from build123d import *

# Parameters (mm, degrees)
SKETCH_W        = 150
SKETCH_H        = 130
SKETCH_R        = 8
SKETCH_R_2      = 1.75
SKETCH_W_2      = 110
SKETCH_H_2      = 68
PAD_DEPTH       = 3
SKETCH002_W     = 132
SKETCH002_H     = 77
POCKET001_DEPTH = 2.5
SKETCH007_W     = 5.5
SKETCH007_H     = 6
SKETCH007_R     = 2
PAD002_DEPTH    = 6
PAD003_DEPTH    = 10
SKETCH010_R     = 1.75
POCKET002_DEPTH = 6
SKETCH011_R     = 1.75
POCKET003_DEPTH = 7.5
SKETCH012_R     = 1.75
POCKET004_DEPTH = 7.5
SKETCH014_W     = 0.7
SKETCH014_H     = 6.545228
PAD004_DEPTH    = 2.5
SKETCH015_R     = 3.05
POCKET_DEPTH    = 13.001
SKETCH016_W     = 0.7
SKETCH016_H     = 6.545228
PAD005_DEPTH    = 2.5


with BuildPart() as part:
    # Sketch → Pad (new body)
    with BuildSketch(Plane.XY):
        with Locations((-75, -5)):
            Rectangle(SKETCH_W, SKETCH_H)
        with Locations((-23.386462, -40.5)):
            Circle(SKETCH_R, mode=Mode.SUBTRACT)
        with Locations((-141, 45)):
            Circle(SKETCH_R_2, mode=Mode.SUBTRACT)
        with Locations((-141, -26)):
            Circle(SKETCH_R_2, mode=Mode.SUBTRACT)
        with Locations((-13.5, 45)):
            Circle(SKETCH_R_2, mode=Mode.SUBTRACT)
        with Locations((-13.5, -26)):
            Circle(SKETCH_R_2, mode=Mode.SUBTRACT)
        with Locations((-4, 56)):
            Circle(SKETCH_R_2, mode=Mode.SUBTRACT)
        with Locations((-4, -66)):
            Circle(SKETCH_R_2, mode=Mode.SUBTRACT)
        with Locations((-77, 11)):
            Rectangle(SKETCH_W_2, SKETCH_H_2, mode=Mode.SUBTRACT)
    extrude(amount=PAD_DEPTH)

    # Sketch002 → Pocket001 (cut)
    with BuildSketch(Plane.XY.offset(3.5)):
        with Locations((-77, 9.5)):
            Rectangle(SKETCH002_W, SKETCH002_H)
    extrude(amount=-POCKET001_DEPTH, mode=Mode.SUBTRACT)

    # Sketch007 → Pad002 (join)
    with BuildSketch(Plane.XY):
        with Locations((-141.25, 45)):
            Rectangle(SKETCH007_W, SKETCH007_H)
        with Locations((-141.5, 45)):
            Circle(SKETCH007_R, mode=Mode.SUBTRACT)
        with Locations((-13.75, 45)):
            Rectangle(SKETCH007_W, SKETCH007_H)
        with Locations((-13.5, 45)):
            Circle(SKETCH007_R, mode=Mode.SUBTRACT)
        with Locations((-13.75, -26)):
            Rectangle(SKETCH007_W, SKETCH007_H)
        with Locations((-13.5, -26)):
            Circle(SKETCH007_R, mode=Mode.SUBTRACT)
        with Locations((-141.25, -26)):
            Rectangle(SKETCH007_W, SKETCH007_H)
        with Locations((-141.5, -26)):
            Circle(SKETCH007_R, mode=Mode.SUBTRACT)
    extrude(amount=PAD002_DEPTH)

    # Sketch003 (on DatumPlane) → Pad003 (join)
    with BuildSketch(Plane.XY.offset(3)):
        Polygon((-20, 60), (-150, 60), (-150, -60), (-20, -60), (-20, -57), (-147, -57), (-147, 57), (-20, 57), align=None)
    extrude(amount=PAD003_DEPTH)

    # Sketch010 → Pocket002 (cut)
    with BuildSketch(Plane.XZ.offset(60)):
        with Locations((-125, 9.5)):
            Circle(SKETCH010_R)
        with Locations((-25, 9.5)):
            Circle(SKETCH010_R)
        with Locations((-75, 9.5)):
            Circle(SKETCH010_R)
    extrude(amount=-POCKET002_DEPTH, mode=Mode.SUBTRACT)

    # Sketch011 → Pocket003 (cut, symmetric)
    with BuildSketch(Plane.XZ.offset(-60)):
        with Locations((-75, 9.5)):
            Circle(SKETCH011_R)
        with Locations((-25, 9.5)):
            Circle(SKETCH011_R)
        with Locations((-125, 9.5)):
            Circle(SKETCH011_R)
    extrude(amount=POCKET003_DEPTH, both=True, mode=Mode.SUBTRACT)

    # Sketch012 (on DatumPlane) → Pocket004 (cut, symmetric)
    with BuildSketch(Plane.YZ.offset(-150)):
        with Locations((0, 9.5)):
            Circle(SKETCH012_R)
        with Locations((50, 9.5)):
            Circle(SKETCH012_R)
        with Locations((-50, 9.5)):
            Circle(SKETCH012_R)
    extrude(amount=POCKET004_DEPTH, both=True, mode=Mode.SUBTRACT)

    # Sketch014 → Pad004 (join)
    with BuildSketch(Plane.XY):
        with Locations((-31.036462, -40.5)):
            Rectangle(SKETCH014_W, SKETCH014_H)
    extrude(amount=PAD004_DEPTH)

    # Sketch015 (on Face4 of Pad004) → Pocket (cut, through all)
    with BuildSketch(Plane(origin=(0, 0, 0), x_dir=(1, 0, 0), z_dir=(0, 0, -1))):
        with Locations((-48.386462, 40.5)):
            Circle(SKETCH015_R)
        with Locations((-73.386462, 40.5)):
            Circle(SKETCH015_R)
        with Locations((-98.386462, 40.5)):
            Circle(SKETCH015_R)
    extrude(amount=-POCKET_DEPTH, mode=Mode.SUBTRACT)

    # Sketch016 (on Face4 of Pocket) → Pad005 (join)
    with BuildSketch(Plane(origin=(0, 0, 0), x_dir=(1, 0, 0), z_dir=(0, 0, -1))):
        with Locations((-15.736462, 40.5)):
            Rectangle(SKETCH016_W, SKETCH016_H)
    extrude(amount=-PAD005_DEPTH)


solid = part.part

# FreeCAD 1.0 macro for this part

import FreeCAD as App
import Part
import Sketcher
from FreeCAD import Vector
Q = App.Units.Quantity

doc = App.newDocument("Part")
body = doc.addObject("PartDesign::Body", "Body")

# Sketch on XY plane
sketch1 = body.newObject("Sketcher::SketchObject", "Sketch")
sketch1.AttachmentSupport = (doc.getObject("XY_Plane"), [""])
sketch1.MapMode = "FlatFace"
sketch1.addGeometry([
    Part.LineSegment(Vector(-150, 60, 0), Vector(-150, -70, 0)),  # 0
    Part.LineSegment(Vector(-150, -70, 0), Vector(0, -70, 0)),  # 1
    Part.LineSegment(Vector(0, -70, 0), Vector(0, 60, 0)),  # 2
    Part.LineSegment(Vector(0, 60, 0), Vector(-150, 60, 0)),  # 3
    Part.Circle(Vector(-141, -26, 0), Vector(0, 0, 1), 1.8),  # 4
    Part.Circle(Vector(-4, -66, 0), Vector(0, 0, 1), 1.8),  # 5
    Part.Circle(Vector(-23.4, -40.5, 0), Vector(0, 0, 1), 8),  # 6
    Part.Circle(Vector(-13.5, -26, 0), Vector(0, 0, 1), 1.8),  # 7
    Part.LineSegment(Vector(-22, -23, 0), Vector(-132, -23, 0)),  # 8
    Part.LineSegment(Vector(-132, -23, 0), Vector(-132, 45, 0)),  # 9
    Part.LineSegment(Vector(-132, 45, 0), Vector(-22, 45, 0)),  # 10
    Part.LineSegment(Vector(-22, 45, 0), Vector(-22, -23, 0)),  # 11
    Part.Circle(Vector(-141, 45, 0), Vector(0, 0, 1), 1.8),  # 12
    Part.Circle(Vector(-13.5, 45, 0), Vector(0, 0, 1), 1.8),  # 13
    Part.Circle(Vector(-4, 56, 0), Vector(0, 0, 1), 1.8),  # 14
], False)
sketch1.addConstraint([
    Sketcher.Constraint("Coincident", 0, 2, 1, 1),
    Sketcher.Constraint("Coincident", 1, 2, 2, 1),
    Sketcher.Constraint("Coincident", 2, 2, 3, 1),
    Sketcher.Constraint("Coincident", 3, 2, 0, 1),
    Sketcher.Constraint("Coincident", 8, 2, 9, 1),
    Sketcher.Constraint("Coincident", 9, 2, 10, 1),
    Sketcher.Constraint("Coincident", 10, 2, 11, 1),
    Sketcher.Constraint("Coincident", 11, 2, 8, 1),
    Sketcher.Constraint("Vertical", 0),
    Sketcher.Constraint("Horizontal", 1),
    Sketcher.Constraint("Vertical", 2),
    Sketcher.Constraint("Horizontal", 3),
    Sketcher.Constraint("Horizontal", 8),
    Sketcher.Constraint("Vertical", 9),
    Sketcher.Constraint("Horizontal", 10),
    Sketcher.Constraint("Vertical", 11),
    Sketcher.Constraint("Equal", 4, 5),
    Sketcher.Constraint("Equal", 5, 7),
    Sketcher.Constraint("Equal", 7, 12),
    Sketcher.Constraint("Equal", 12, 13),
    Sketcher.Constraint("Equal", 13, 14),
    Sketcher.Constraint("PointOnObject", 1, 2, -2),
    Sketcher.Constraint("Horizontal", 4, 3, 7, 3),
    Sketcher.Constraint("Horizontal", 12, 3, 13, 3),
    Sketcher.Constraint("Horizontal", 13, 3, 9, 2),
    Sketcher.Constraint("Vertical", 4, 3, 12, 3),
    Sketcher.Constraint("Vertical", 7, 3, 13, 3),
    Sketcher.Constraint("Vertical", 5, 3, 14, 3),
    Sketcher.Constraint("Diameter", 6, Q("16 mm")),
    Sketcher.Constraint("Diameter", 4, Q("3.5 mm")),
    Sketcher.Constraint("DistanceX", 1, 1, 1, 2, Q("150 mm")),
    Sketcher.Constraint("DistanceX", 8, 2, 8, 1, Q("110 mm")),
    Sketcher.Constraint("DistanceY", 0, 2, 0, 1, Q("130 mm")),
    Sketcher.Constraint("DistanceY", 9, 1, 9, 2, Q("68 mm")),
    Sketcher.Constraint("DistanceX", 4, 3, -1, 1, Q("141 mm")),
    Sketcher.Constraint("DistanceY", 4, 3, -1, 1, Q("26 mm")),
    Sketcher.Constraint("DistanceX", 5, 3, -1, 1, Q("4 mm")),
    Sketcher.Constraint("DistanceY", 5, 3, -1, 1, Q("66 mm")),
    Sketcher.Constraint("DistanceY", -1, 1, 12, 3, Q("45 mm")),
    Sketcher.Constraint("DistanceY", -1, 1, 14, 3, Q("56 mm")),
    Sketcher.Constraint("DistanceY", 0, 2, -1, 1, Q("70 mm")),
    Sketcher.Constraint("DistanceX", 8, 2, -1, 1, Q("132 mm")),
    Sketcher.Constraint("DistanceY", 6, 3, -1, 1, Q("40.5 mm")),
    Sketcher.Constraint("DistanceX", 7, 3, -1, 1, Q("13.5 mm")),
    Sketcher.Constraint("DistanceX", 4, 3, 6, 3, Q("117.613538 mm")),
])
pad1 = body.newObject("PartDesign::Pad", "Pad")
pad1.Profile = sketch1
pad1.Length = 3

# Sketch on XY plane
sketch2 = body.newObject("Sketcher::SketchObject", "Sketch001")
sketch2.AttachmentSupport = (doc.getObject("XY_Plane"), [""])
sketch2.MapMode = "FlatFace"
sketch2.AttachmentOffset = App.Placement(Vector(0, 0, 3.5), App.Rotation())
sketch2.addGeometry([
    Part.LineSegment(Vector(-143, 48, 0), Vector(-143, -29, 0)),
    Part.LineSegment(Vector(-143, -29, 0), Vector(-11, -29, 0)),
    Part.LineSegment(Vector(-11, -29, 0), Vector(-11, 48, 0)),
    Part.LineSegment(Vector(-11, 48, 0), Vector(-143, 48, 0)),
], False)
sketch2.addConstraint([
    Sketcher.Constraint("Coincident", 0, 2, 1, 1),
    Sketcher.Constraint("Coincident", 1, 2, 2, 1),
    Sketcher.Constraint("Coincident", 2, 2, 3, 1),
    Sketcher.Constraint("Coincident", 3, 2, 0, 1),
    Sketcher.Constraint("Vertical", 0),
    Sketcher.Constraint("Horizontal", 1),
    Sketcher.Constraint("Vertical", 2),
    Sketcher.Constraint("Horizontal", 3),
    Sketcher.Constraint("DistanceX", 1, 1, 1, 2, Q("132 mm")),
    Sketcher.Constraint("DistanceY", 0, 2, 0, 1, Q("77 mm")),
    Sketcher.Constraint("DistanceX", 0, 2, -1, 1, Q("143 mm")),
    Sketcher.Constraint("DistanceY", 0, 2, -1, 1, Q("29 mm")),
])
pocket1 = body.newObject("PartDesign::Pocket", "Pocket")
pocket1.Profile = sketch2
pocket1.Length = 2.5

# Sketch on XY plane
sketch3 = body.newObject("Sketcher::SketchObject", "Sketch002")
sketch3.AttachmentSupport = (doc.getObject("XY_Plane"), [""])
sketch3.MapMode = "FlatFace"
sketch3.addGeometry([
    Part.LineSegment(Vector(-144, 48, 0), Vector(-144, 42, 0)),  # 0
    Part.LineSegment(Vector(-144, 42, 0), Vector(-138.5, 42, 0)),  # 1
    Part.LineSegment(Vector(-138.5, 42, 0), Vector(-138.5, 48, 0)),  # 2
    Part.LineSegment(Vector(-138.5, 48, 0), Vector(-144, 48, 0)),  # 3
    Part.Circle(Vector(-141.5, 45, 0), Vector(0, 0, 1), 2),  # 4
    Part.LineSegment(Vector(-16.5, 48, 0), Vector(-16.5, 42, 0)),  # 5
    Part.LineSegment(Vector(-16.5, 42, 0), Vector(-11, 42, 0)),  # 6
    Part.LineSegment(Vector(-11, 42, 0), Vector(-11, 48, 0)),  # 7
    Part.LineSegment(Vector(-11, 48, 0), Vector(-16.5, 48, 0)),  # 8
    Part.Circle(Vector(-13.5, 45, 0), Vector(0, 0, 1), 2),  # 9
    Part.LineSegment(Vector(-16.5, -23, 0), Vector(-16.5, -29, 0)),  # 10
    Part.LineSegment(Vector(-16.5, -29, 0), Vector(-11, -29, 0)),  # 11
    Part.LineSegment(Vector(-11, -29, 0), Vector(-11, -23, 0)),  # 12
    Part.LineSegment(Vector(-11, -23, 0), Vector(-16.5, -23, 0)),  # 13
    Part.Circle(Vector(-13.5, -26, 0), Vector(0, 0, 1), 2),  # 14
    Part.LineSegment(Vector(-144, -23, 0), Vector(-144, -29, 0)),  # 15
    Part.LineSegment(Vector(-144, -29, 0), Vector(-138.5, -29, 0)),  # 16
    Part.LineSegment(Vector(-138.5, -29, 0), Vector(-138.5, -23, 0)),  # 17
    Part.LineSegment(Vector(-138.5, -23, 0), Vector(-144, -23, 0)),  # 18
    Part.Circle(Vector(-141.5, -26, 0), Vector(0, 0, 1), 2),  # 19
], False)
sketch3.addConstraint([
    Sketcher.Constraint("Coincident", 0, 2, 1, 1),
    Sketcher.Constraint("Coincident", 1, 2, 2, 1),
    Sketcher.Constraint("Coincident", 2, 2, 3, 1),
    Sketcher.Constraint("Coincident", 3, 2, 0, 1),
    Sketcher.Constraint("Coincident", 5, 2, 6, 1),
    Sketcher.Constraint("Coincident", 6, 2, 7, 1),
    Sketcher.Constraint("Coincident", 7, 2, 8, 1),
    Sketcher.Constraint("Coincident", 8, 2, 5, 1),
    Sketcher.Constraint("Coincident", 10, 2, 11, 1),
    Sketcher.Constraint("Coincident", 11, 2, 12, 1),
    Sketcher.Constraint("Coincident", 12, 2, 13, 1),
    Sketcher.Constraint("Coincident", 13, 2, 10, 1),
    Sketcher.Constraint("Coincident", 15, 2, 16, 1),
    Sketcher.Constraint("Coincident", 16, 2, 17, 1),
    Sketcher.Constraint("Coincident", 17, 2, 18, 1),
    Sketcher.Constraint("Coincident", 18, 2, 15, 1),
    Sketcher.Constraint("Vertical", 0),
    Sketcher.Constraint("Horizontal", 1),
    Sketcher.Constraint("Vertical", 2),
    Sketcher.Constraint("Horizontal", 3),
    Sketcher.Constraint("Vertical", 5),
    Sketcher.Constraint("Horizontal", 6),
    Sketcher.Constraint("Vertical", 7),
    Sketcher.Constraint("Horizontal", 8),
    Sketcher.Constraint("Vertical", 10),
    Sketcher.Constraint("Horizontal", 11),
    Sketcher.Constraint("Vertical", 12),
    Sketcher.Constraint("Horizontal", 13),
    Sketcher.Constraint("Vertical", 15),
    Sketcher.Constraint("Horizontal", 16),
    Sketcher.Constraint("Vertical", 17),
    Sketcher.Constraint("Horizontal", 18),
    Sketcher.Constraint("Equal", 4, 9),
    Sketcher.Constraint("Equal", 9, 14),
    Sketcher.Constraint("Equal", 14, 19),
    Sketcher.Constraint("Horizontal", 4, 3, 9, 3),
    Sketcher.Constraint("Horizontal", 14, 3, 19, 3),
    Sketcher.Constraint("Horizontal", 1, 2, 5, 2),
    Sketcher.Constraint("Horizontal", 3, 2, 7, 2),
    Sketcher.Constraint("Horizontal", 11, 2, 15, 2),
    Sketcher.Constraint("Horizontal", 13, 2, 17, 2),
    Sketcher.Constraint("Vertical", 9, 3, 14, 3),
    Sketcher.Constraint("Vertical", 4, 3, 19, 3),
    Sketcher.Constraint("Vertical", 8, 2, 10, 2),
    Sketcher.Constraint("Vertical", 7, 2, 11, 2),
    Sketcher.Constraint("Vertical", 3, 2, 15, 2),
    Sketcher.Constraint("Vertical", 2, 2, 16, 2),
    Sketcher.Constraint("Equal", 3, 6),
    Sketcher.Constraint("Equal", 7, 10),
    Sketcher.Constraint("Diameter", 4, Q("4 mm")),
    Sketcher.Constraint("DistanceY", 0, 2, 0, 1, Q("6 mm")),
    Sketcher.Constraint("DistanceX", 1, 1, 1, 2, Q("5.5 mm")),
    Sketcher.Constraint("DistanceY", -1, 1, 4, 3, Q("45 mm")),
    Sketcher.Constraint("DistanceY", 14, 3, -1, 1, Q("26 mm")),
    Sketcher.Constraint("DistanceX", 0, 2, -1, 1, Q("144 mm")),
    Sketcher.Constraint("DistanceY", -1, 1, 0, 2, Q("42 mm")),
    Sketcher.Constraint("DistanceX", 6, 2, -1, 1, Q("11 mm")),
    Sketcher.Constraint("DistanceY", 10, 2, -1, 1, Q("29 mm")),
    Sketcher.Constraint("DistanceX", 4, 3, 9, 3, Q("128 mm")),
    Sketcher.Constraint("DistanceX", 4, 3, 1, 2, Q("3 mm")),
])
pad2 = body.newObject("PartDesign::Pad", "Pad001")
pad2.Profile = sketch3
pad2.Length = 6

# Sketch on XY plane
sketch4 = body.newObject("Sketcher::SketchObject", "Sketch003")
sketch4.AttachmentSupport = (doc.getObject("XY_Plane"), [""])
sketch4.MapMode = "FlatFace"
sketch4.AttachmentOffset = App.Placement(Vector(0, 0, 3), App.Rotation())
sketch4.addGeometry([
    Part.LineSegment(Vector(-20, 60, 0), Vector(-150, 60, 0)),  # 0
    Part.LineSegment(Vector(-150, 60, 0), Vector(-150, -60, 0)),  # 1
    Part.LineSegment(Vector(-150, -60, 0), Vector(-20, -60, 0)),  # 2
    Part.LineSegment(Vector(-20, -60, 0), Vector(-20, -57, 0)),  # 3
    Part.LineSegment(Vector(-20, -57, 0), Vector(-147, -57, 0)),  # 4
    Part.LineSegment(Vector(-147, -57, 0), Vector(-147, 57, 0)),  # 5
    Part.LineSegment(Vector(-147, 57, 0), Vector(-20, 57, 0)),  # 6
    Part.LineSegment(Vector(-20, 57, 0), Vector(-20, 60, 0)),  # 7
], False)
sketch4.addConstraint([
    Sketcher.Constraint("Coincident", 0, 2, 1, 1),
    Sketcher.Constraint("Coincident", 1, 2, 2, 1),
    Sketcher.Constraint("Coincident", 2, 2, 3, 1),
    Sketcher.Constraint("Coincident", 3, 2, 4, 1),
    Sketcher.Constraint("Coincident", 4, 2, 5, 1),
    Sketcher.Constraint("Coincident", 5, 2, 6, 1),
    Sketcher.Constraint("Coincident", 6, 2, 7, 1),
    Sketcher.Constraint("Coincident", 7, 2, 0, 1),
    Sketcher.Constraint("Horizontal", 0),
    Sketcher.Constraint("Vertical", 1),
    Sketcher.Constraint("Horizontal", 2),
    Sketcher.Constraint("Vertical", 3),
    Sketcher.Constraint("Horizontal", 4),
    Sketcher.Constraint("Vertical", 5),
    Sketcher.Constraint("Horizontal", 6),
    Sketcher.Constraint("Vertical", 7),
    Sketcher.Constraint("Symmetric", 3, 2, 6, 2, -1),
    Sketcher.Constraint("Equal", 3, 7),
    Sketcher.Constraint("DistanceX", 0, 2, 0, 1, Q("130 mm")),
    Sketcher.Constraint("DistanceX", 4, 2, 4, 1, Q("127 mm")),
    Sketcher.Constraint("DistanceY", 1, 2, 1, 1, Q("120 mm")),
    Sketcher.Constraint("DistanceY", 3, 1, 3, 2, Q("3 mm")),
    Sketcher.Constraint("DistanceX", 0, 2, -1, 1, Q("150 mm")),
])
pad3 = body.newObject("PartDesign::Pad", "Pad002")
pad3.Profile = sketch4
pad3.Length = 10

# Sketch on XZ plane
sketch5 = body.newObject("Sketcher::SketchObject", "Sketch004")
sketch5.AttachmentSupport = (doc.getObject("XZ_Plane"), [""])
sketch5.MapMode = "FlatFace"
sketch5.AttachmentOffset = App.Placement(Vector(0, 0, 60), App.Rotation())
sketch5.addGeometry([
    Part.Circle(Vector(-125, 9.5, 0), Vector(0, 0, 1), 1.8),
    Part.Circle(Vector(-25, 9.5, 0), Vector(0, 0, 1), 1.8),
    Part.Circle(Vector(-75, 9.5, 0), Vector(0, 0, 1), 1.8),
], False)
sketch5.addConstraint([
    Sketcher.Constraint("Equal", 0, 1),
    Sketcher.Constraint("Equal", 1, 2),
    Sketcher.Constraint("Horizontal", 0, 3, 1, 3),
    Sketcher.Constraint("Horizontal", 1, 3, 2, 3),
    Sketcher.Constraint("Diameter", 0, Q("3.5 mm")),
    Sketcher.Constraint("DistanceX", 0, 3, -1, 1, Q("125 mm")),
    Sketcher.Constraint("DistanceX", 1, 3, -1, 1, Q("25 mm")),
    Sketcher.Constraint("DistanceX", 2, 3, -1, 1, Q("75 mm")),
    Sketcher.Constraint("DistanceY", -1, 1, 0, 3, Q("9.5 mm")),
])
pocket2 = body.newObject("PartDesign::Pocket", "Pocket001")
pocket2.Profile = sketch5
pocket2.Length = 6

# Sketch on XZ plane
sketch6 = body.newObject("Sketcher::SketchObject", "Sketch005")
sketch6.AttachmentSupport = (doc.getObject("XZ_Plane"), [""])
sketch6.MapMode = "FlatFace"
sketch6.AttachmentOffset = App.Placement(Vector(0, 0, -60), App.Rotation())
sketch6.addGeometry([
    Part.Circle(Vector(-75, 9.5, 0), Vector(0, 0, 1), 1.8),
    Part.Circle(Vector(-25, 9.5, 0), Vector(0, 0, 1), 1.8),
    Part.Circle(Vector(-125, 9.5, 0), Vector(0, 0, 1), 1.8),
], False)
sketch6.addConstraint([
    Sketcher.Constraint("Equal", 0, 1),
    Sketcher.Constraint("Equal", 1, 2),
    Sketcher.Constraint("Horizontal", 0, 3, 1, 3),
    Sketcher.Constraint("Horizontal", 1, 3, 2, 3),
    Sketcher.Constraint("Diameter", 0, Q("3.5 mm")),
    Sketcher.Constraint("DistanceX", 0, 3, -1, 1, Q("75 mm")),
    Sketcher.Constraint("DistanceX", 1, 3, -1, 1, Q("25 mm")),
    Sketcher.Constraint("DistanceX", 2, 3, -1, 1, Q("125 mm")),
    Sketcher.Constraint("DistanceY", -1, 1, 0, 3, Q("9.5 mm")),
])
pocket3 = body.newObject("PartDesign::Pocket", "Pocket002")
pocket3.Profile = sketch6
pocket3.Length = 15
pocket3.Midplane = True

# Sketch on YZ plane
sketch7 = body.newObject("Sketcher::SketchObject", "Sketch006")
sketch7.AttachmentSupport = (doc.getObject("YZ_Plane"), [""])
sketch7.MapMode = "FlatFace"
sketch7.AttachmentOffset = App.Placement(Vector(0, 0, -150), App.Rotation())
sketch7.addGeometry([
    Part.Circle(Vector(0, 9.5, 0), Vector(0, 0, 1), 1.8),
    Part.Circle(Vector(50, 9.5, 0), Vector(0, 0, 1), 1.8),
    Part.Circle(Vector(-50, 9.5, 0), Vector(0, 0, 1), 1.8),
], False)
sketch7.addConstraint([
    Sketcher.Constraint("Equal", 0, 1),
    Sketcher.Constraint("Equal", 1, 2),
    Sketcher.Constraint("Symmetric", 1, 3, 2, 3, -2),
    Sketcher.Constraint("PointOnObject", 0, 3, -2),
    Sketcher.Constraint("Horizontal", 0, 3, 1, 3),
    Sketcher.Constraint("Diameter", 0, Q("3.5 mm")),
    Sketcher.Constraint("DistanceX", -1, 1, 1, 3, Q("50 mm")),
    Sketcher.Constraint("DistanceY", -1, 1, 0, 3, Q("9.5 mm")),
])
pocket4 = body.newObject("PartDesign::Pocket", "Pocket003")
pocket4.Profile = sketch7
pocket4.Length = 15
pocket4.Midplane = True

# Sketch on XY plane
sketch8 = body.newObject("Sketcher::SketchObject", "Sketch007")
sketch8.AttachmentSupport = (doc.getObject("XY_Plane"), [""])
sketch8.MapMode = "FlatFace"
sketch8.addGeometry([
    Part.LineSegment(Vector(-31.4, -37.2, 0), Vector(-31.4, -43.8, 0)),
    Part.LineSegment(Vector(-31.4, -43.8, 0), Vector(-30.7, -43.8, 0)),
    Part.LineSegment(Vector(-30.7, -43.8, 0), Vector(-30.7, -37.2, 0)),
    Part.LineSegment(Vector(-30.7, -37.2, 0), Vector(-31.4, -37.2, 0)),
], False)
sketch8.addConstraint([
    Sketcher.Constraint("Coincident", 0, 2, 1, 1),
    Sketcher.Constraint("Coincident", 1, 2, 2, 1),
    Sketcher.Constraint("Coincident", 2, 2, 3, 1),
    Sketcher.Constraint("Coincident", 3, 2, 0, 1),
    Sketcher.Constraint("Vertical", 0),
    Sketcher.Constraint("Horizontal", 1),
    Sketcher.Constraint("Vertical", 2),
    Sketcher.Constraint("Horizontal", 3),
    Sketcher.Constraint("DistanceX", 1, 1, 1, 2, Q("0.7 mm")),
    Sketcher.Constraint("DistanceY", 0, 2, 0, 1, Q("6.545228 mm")),
    Sketcher.Constraint("DistanceX", 1, 2, -1, 1, Q("30.686462 mm")),
    Sketcher.Constraint("DistanceY", 0, 2, -1, 1, Q("43.772614 mm")),
])
pad4 = body.newObject("PartDesign::Pad", "Pad003")
pad4.Profile = sketch8
pad4.Length = 2.5

# Sketch on XY plane
sketch9 = body.newObject("Sketcher::SketchObject", "Sketch008")
sketch9.AttachmentSupport = (doc.getObject("XY_Plane"), [""])
sketch9.MapMode = "FlatFace"
sketch9.addGeometry([
    Part.Circle(Vector(-48.4, -40.5, 0), Vector(0, 0, 1), 3),
    Part.Circle(Vector(-73.4, -40.5, 0), Vector(0, 0, 1), 3),
    Part.Circle(Vector(-98.4, -40.5, 0), Vector(0, 0, 1), 3),
], False)
sketch9.addConstraint([
    Sketcher.Constraint("Equal", 0, 1),
    Sketcher.Constraint("Equal", 1, 2),
    Sketcher.Constraint("Horizontal", 0, 3, 1, 3),
    Sketcher.Constraint("Horizontal", 1, 3, 2, 3),
    Sketcher.Constraint("Diameter", 0, Q("6.1 mm")),
    Sketcher.Constraint("DistanceX", 1, 3, 0, 3, Q("25 mm")),
    Sketcher.Constraint("DistanceX", 2, 3, 1, 3, Q("25 mm")),
    Sketcher.Constraint("DistanceY", 0, 3, -1, 1, Q("40.5 mm")),
    Sketcher.Constraint("DistanceX", 1, 3, -1, 1, Q("73.386462 mm")),
])
pocket5 = body.newObject("PartDesign::Pocket", "Pocket004")
pocket5.Profile = sketch9
pocket5.Type = "ThroughAll"
pocket5.Reversed = True

# Sketch on XY plane
sketch10 = body.newObject("Sketcher::SketchObject", "Sketch009")
sketch10.AttachmentSupport = (doc.getObject("XY_Plane"), [""])
sketch10.MapMode = "FlatFace"
sketch10.addGeometry([
    Part.LineSegment(Vector(-16.1, -43.8, 0), Vector(-16.1, -37.2, 0)),
    Part.LineSegment(Vector(-16.1, -37.2, 0), Vector(-15.4, -37.2, 0)),
    Part.LineSegment(Vector(-15.4, -37.2, 0), Vector(-15.4, -43.8, 0)),
    Part.LineSegment(Vector(-15.4, -43.8, 0), Vector(-16.1, -43.8, 0)),
], False)
sketch10.addConstraint([
    Sketcher.Constraint("Coincident", 0, 2, 1, 1),
    Sketcher.Constraint("Coincident", 1, 2, 2, 1),
    Sketcher.Constraint("Coincident", 2, 2, 3, 1),
    Sketcher.Constraint("Coincident", 3, 2, 0, 1),
    Sketcher.Constraint("Vertical", 0),
    Sketcher.Constraint("Horizontal", 1),
    Sketcher.Constraint("Vertical", 2),
    Sketcher.Constraint("Horizontal", 3),
    Sketcher.Constraint("DistanceX", 1, 1, 1, 2, Q("0.7 mm")),
    Sketcher.Constraint("DistanceY", 0, 1, 0, 2, Q("6.545228 mm")),
    Sketcher.Constraint("DistanceX", 0, 2, -1, 1, Q("16.086462 mm")),
    Sketcher.Constraint("DistanceY", 0, 2, -1, 1, Q("37.227386 mm")),
])
pad5 = body.newObject("PartDesign::Pad", "Pad004")
pad5.Profile = sketch10
pad5.Length = 2.5

doc.recompute()
